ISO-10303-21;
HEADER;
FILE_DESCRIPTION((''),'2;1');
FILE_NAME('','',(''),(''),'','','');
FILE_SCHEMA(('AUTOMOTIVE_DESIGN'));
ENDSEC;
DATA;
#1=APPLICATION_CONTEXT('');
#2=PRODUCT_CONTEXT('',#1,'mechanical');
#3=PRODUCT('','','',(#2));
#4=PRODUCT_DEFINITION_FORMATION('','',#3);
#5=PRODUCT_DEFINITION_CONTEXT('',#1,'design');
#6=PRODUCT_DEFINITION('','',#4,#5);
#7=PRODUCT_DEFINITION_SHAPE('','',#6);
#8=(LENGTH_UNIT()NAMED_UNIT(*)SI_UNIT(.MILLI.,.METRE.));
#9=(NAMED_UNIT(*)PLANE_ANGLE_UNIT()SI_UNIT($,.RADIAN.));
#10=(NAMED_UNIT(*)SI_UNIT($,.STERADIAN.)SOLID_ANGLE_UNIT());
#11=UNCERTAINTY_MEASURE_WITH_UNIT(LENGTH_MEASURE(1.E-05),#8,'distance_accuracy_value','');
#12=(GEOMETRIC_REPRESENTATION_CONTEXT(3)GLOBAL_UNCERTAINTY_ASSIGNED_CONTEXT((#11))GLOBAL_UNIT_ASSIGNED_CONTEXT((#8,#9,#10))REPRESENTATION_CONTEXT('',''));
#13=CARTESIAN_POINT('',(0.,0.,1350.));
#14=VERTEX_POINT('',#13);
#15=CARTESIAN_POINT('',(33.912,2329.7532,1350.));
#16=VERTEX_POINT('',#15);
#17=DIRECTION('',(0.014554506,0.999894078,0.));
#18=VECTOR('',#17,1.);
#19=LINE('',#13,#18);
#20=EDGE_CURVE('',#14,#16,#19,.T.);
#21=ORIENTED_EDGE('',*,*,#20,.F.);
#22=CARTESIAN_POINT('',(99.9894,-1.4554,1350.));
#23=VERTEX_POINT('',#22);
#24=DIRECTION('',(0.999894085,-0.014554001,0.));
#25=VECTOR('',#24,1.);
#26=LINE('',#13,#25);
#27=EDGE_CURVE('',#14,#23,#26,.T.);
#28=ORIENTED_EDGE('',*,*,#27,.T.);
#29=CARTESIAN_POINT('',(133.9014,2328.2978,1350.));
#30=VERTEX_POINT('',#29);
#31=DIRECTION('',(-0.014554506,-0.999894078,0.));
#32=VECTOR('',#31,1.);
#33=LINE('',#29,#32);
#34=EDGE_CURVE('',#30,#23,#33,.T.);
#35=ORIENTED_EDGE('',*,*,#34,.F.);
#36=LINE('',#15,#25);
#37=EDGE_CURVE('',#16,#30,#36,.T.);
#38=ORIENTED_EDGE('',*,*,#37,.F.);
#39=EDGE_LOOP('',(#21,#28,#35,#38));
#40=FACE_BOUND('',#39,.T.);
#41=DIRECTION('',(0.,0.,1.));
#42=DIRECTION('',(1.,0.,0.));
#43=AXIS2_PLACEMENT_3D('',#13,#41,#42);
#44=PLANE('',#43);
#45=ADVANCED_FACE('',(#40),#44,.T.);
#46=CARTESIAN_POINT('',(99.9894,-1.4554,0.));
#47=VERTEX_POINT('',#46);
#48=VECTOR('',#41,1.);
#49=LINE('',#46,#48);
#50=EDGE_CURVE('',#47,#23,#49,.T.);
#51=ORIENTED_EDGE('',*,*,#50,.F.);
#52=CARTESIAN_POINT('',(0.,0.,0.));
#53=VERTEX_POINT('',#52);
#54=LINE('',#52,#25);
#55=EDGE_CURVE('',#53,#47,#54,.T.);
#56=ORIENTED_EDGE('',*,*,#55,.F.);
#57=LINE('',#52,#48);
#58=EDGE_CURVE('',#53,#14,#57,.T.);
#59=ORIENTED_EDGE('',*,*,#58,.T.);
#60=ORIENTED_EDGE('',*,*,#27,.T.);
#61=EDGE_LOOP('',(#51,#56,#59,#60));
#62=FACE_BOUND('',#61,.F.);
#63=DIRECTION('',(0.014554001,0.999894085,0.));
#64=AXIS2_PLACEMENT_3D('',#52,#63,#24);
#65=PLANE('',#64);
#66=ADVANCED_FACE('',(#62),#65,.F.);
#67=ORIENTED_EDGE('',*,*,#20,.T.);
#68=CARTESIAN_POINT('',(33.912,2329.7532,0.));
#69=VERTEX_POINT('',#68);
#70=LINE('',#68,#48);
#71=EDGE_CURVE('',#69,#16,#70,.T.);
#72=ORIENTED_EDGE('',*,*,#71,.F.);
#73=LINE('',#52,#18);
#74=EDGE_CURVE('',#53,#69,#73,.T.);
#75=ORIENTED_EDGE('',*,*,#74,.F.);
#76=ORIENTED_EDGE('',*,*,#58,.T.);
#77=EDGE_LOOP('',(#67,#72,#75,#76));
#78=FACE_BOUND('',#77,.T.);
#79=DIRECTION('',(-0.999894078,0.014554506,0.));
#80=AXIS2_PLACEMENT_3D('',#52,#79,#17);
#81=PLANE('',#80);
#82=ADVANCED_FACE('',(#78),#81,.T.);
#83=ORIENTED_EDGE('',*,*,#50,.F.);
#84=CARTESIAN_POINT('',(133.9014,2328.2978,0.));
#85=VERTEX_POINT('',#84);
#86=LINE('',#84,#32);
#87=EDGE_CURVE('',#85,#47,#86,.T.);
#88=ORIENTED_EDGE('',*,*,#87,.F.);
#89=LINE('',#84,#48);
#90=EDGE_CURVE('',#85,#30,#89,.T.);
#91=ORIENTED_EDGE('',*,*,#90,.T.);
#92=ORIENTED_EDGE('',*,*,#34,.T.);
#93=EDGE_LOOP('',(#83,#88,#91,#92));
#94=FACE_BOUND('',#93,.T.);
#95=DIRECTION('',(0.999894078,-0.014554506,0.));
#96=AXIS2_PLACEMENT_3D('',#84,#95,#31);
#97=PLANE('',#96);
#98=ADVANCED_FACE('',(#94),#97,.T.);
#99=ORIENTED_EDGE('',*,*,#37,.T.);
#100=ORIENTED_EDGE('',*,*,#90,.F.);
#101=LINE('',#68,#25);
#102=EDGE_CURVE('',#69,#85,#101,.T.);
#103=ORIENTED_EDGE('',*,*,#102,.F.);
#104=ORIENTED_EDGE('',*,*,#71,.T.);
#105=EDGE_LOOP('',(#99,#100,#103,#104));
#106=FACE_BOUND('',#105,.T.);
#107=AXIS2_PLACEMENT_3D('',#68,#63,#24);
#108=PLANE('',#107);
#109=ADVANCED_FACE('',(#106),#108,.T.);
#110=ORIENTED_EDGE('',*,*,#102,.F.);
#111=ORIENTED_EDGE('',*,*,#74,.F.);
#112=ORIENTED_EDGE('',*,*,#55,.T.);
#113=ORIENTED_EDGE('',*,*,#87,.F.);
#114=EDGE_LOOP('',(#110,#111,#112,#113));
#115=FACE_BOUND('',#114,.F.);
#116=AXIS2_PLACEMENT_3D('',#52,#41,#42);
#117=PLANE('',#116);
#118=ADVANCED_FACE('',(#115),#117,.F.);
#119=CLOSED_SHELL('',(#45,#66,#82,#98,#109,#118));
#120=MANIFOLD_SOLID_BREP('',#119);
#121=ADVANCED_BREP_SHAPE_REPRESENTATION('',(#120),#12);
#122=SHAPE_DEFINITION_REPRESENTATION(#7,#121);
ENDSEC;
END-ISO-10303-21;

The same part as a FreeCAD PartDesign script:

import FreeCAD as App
import Part
import Sketcher
from FreeCAD import Vector
Q = App.Units.Quantity


def add_polygon(sketch, points):
    """Adds a closed chain of lines whose ends are joined by coincident constraints."""
    first, n = sketch.GeometryCount, len(points)
    for a, b in zip(points, points[1:] + points[:1]):
        sketch.addGeometry(Part.LineSegment(App.Vector(*a, 0), App.Vector(*b, 0)), False)
    for i in range(n):
        sketch.addConstraint(Sketcher.Constraint("Coincident", first + i, 2, first + (i + 1) % n, 1))

doc = App.newDocument("Part")
body = doc.addObject("PartDesign::Body", "Body")

# Sketch on XY plane
sketch1 = body.newObject("Sketcher::SketchObject", "Sketch")
sketch1.AttachmentSupport = (doc.getObject("XY_Plane"), [""])
sketch1.MapMode = "FlatFace"
add_polygon(sketch1, [(99.9894, -1.4554), (133.9014, 2328.2978), (33.912, 2329.7532), (0, 0)])  # lines 0-3
sketch1.addConstraint(Sketcher.Constraint("Coincident", 2, 2, -1, 1))
sketch1.addConstraint(Sketcher.Constraint("Perpendicular", 0, 1))
sketch1.addConstraint(Sketcher.Constraint("Perpendicular", 1, 2))
sketch1.addConstraint(Sketcher.Constraint("Perpendicular", 2, 3))
sketch1.addConstraint(Sketcher.Constraint("Distance", 0, Q("2330 mm")))
sketch1.addConstraint(Sketcher.Constraint("Distance", 1, Q("100 mm")))
sketch1.addConstraint(Sketcher.Constraint("DistanceX", -1, 1, 1, 2, Q("33.912 mm")))
pad1 = body.newObject("PartDesign::Pad", "Pad")
pad1.Profile = sketch1
pad1.Length = 1350

doc.recompute()
